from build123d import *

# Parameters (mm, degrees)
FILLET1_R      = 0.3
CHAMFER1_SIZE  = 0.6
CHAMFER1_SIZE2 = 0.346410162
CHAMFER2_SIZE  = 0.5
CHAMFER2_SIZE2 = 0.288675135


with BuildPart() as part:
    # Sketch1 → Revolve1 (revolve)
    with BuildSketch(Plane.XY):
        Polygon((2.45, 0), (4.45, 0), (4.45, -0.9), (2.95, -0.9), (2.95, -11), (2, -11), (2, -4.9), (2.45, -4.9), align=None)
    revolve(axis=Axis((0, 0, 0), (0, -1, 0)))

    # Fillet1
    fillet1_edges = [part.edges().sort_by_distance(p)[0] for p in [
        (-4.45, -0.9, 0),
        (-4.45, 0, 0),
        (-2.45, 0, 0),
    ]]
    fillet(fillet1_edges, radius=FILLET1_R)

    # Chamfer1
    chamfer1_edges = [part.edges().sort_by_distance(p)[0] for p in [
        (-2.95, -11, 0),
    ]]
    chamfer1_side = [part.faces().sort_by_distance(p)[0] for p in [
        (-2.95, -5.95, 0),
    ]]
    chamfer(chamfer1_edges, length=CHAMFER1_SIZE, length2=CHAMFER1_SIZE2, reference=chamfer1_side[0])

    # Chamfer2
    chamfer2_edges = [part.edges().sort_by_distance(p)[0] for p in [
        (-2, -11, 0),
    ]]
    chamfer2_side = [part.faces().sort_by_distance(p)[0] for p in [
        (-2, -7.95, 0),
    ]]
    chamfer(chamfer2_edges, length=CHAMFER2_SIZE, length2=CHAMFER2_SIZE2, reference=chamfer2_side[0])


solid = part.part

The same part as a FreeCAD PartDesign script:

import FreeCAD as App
import Part
import Sketcher
Q = App.Units.Quantity


def edges_at(feature, points):
    """Names of the edges that pass closest to the given points."""
    edges = feature.Shape.Edges
    near = lambda p: min(range(len(edges)), key=lambda i: edges[i].distToShape(Part.Vertex(*p))[0])
    return sorted({f"Edge{near(p) + 1}" for p in points})


def add_polygon(sketch, points):
    """Adds a closed chain of lines whose ends are joined by coincident constraints."""
    first, n = sketch.GeometryCount, len(points)
    for a, b in zip(points, points[1:] + points[:1]):
        sketch.addGeometry(Part.LineSegment(App.Vector(*a, 0), App.Vector(*b, 0)), False)
    for i in range(n):
        sketch.addConstraint(Sketcher.Constraint("Coincident", first + i, 2, first + (i + 1) % n, 1))

doc = App.newDocument("Part")
body = doc.addObject("PartDesign::Body", "Body")

# Sketch on XY plane
sketch1 = body.newObject("Sketcher::SketchObject", "Sketch")
sketch1.AttachmentSupport = (doc.getObject("XY_Plane"), [""])
sketch1.MapMode = "FlatFace"
add_polygon(sketch1, [(4.45, 0), (2.45, 0), (2.45, -4.9), (2, -4.9), (2, -11), (2.95, -11), (2.95, -0.9), (4.45, -0.9)])  # lines 0-7
sketch1.addConstraint(Sketcher.Constraint("Horizontal", 0))
sketch1.addConstraint(Sketcher.Constraint("Vertical", 1))
sketch1.addConstraint(Sketcher.Constraint("Horizontal", 2))
sketch1.addConstraint(Sketcher.Constraint("Vertical", 3))
sketch1.addConstraint(Sketcher.Constraint("Horizontal", 4))
sketch1.addConstraint(Sketcher.Constraint("Vertical", 5))
sketch1.addConstraint(Sketcher.Constraint("Horizontal", 6))
sketch1.addConstraint(Sketcher.Constraint("Vertical", 7))
sketch1.addConstraint(Sketcher.Constraint("PointOnObject", 0, 2, -1))
sketch1.addConstraint(Sketcher.Constraint("DistanceX", 0, 2, 0, 1, Q("2 mm")))
sketch1.addConstraint(Sketcher.Constraint("DistanceX", 6, 1, 6, 2, Q("1.5 mm")))
sketch1.addConstraint(Sketcher.Constraint("DistanceY", 1, 2, 1, 1, Q("4.9 mm")))
sketch1.addConstraint(Sketcher.Constraint("DistanceY", 3, 2, 3, 1, Q("6.1 mm")))
sketch1.addConstraint(Sketcher.Constraint("DistanceY", 5, 1, 5, 2, Q("10.1 mm")))
sketch1.addConstraint(Sketcher.Constraint("DistanceX", -1, 1, 2, 2, Q("2 mm")))
sketch1.addConstraint(Sketcher.Constraint("DistanceX", 2, 2, 2, 1, Q("0.45 mm")))
revolution = body.newObject("PartDesign::Revolution", "Revolution")
revolution.Profile = sketch1
revolution.ReferenceAxis = (sketch1, ["V_Axis"])
revolution.Angle = 360
doc.recompute()

fillet = body.newObject("PartDesign::Fillet", "Fillet")
fillet.Base = (revolution, edges_at(revolution, [(-4.45, -0.9, 0), (-4.45, 0, 0), (-2.45, 0, 0)]))
fillet.Radius = 0.3
doc.recompute()

chamfer = body.newObject("PartDesign::Chamfer", "Chamfer")
chamfer.Base = (fillet, edges_at(fillet, [(-2.95, -11, 0)]))
chamfer.ChamferType = "Two distances"
chamfer.Size = 0.6
chamfer.Size2 = 0.34641
doc.recompute()

chamfer2 = body.newObject("PartDesign::Chamfer", "Chamfer001")
chamfer2.Base = (chamfer, edges_at(chamfer, [(-2, -11, 0)]))
chamfer2.ChamferType = "Two distances"
chamfer2.Size = 0.5
chamfer2.Size2 = 0.288675
chamfer2.FlipDirection = True

doc.recompute()
